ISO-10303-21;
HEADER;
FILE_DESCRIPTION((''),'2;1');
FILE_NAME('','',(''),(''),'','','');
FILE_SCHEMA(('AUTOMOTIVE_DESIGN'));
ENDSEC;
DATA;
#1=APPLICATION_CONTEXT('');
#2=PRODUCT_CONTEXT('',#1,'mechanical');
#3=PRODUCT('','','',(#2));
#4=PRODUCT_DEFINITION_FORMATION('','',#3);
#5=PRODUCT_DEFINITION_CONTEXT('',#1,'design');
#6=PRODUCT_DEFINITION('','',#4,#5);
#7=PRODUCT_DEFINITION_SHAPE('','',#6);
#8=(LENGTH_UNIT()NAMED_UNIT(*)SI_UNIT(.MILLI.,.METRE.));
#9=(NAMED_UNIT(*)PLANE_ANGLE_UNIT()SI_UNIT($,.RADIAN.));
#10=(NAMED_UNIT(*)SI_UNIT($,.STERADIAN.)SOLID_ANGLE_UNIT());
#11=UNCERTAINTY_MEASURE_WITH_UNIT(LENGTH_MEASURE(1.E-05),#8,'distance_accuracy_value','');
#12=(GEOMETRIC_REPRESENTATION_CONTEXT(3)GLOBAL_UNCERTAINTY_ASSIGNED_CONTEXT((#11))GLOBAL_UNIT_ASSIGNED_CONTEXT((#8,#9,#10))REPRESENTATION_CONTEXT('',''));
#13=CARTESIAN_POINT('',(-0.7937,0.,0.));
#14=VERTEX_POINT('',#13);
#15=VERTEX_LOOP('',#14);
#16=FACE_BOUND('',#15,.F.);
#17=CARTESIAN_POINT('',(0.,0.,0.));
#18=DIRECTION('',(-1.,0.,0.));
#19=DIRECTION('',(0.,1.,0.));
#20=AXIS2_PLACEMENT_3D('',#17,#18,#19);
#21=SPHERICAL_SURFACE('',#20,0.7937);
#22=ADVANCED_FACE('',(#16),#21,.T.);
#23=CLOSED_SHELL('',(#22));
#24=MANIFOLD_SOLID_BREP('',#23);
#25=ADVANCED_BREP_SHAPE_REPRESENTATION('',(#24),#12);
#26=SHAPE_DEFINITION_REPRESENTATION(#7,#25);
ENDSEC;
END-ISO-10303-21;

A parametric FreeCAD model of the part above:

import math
import FreeCAD as App
import Part
import Sketcher
Q = App.Units.Quantity

doc = App.newDocument("Part")
body = doc.addObject("PartDesign::Body", "Body")

sketch1 = body.newObject("Sketcher::SketchObject", "Sketch")
sketch1.AttachmentSupport = (doc.getObject("XY_Plane"), [""])
sketch1.MapMode = "FlatFace"
sketch1.addGeometry(Part.LineSegment(App.Vector(-0.8, 0, 0), App.Vector(0.8, 0, 0)), False)
sketch1.addGeometry(Part.ArcOfCircle(Part.Circle(App.Vector(0, 0, 0), App.Vector(0, 0, 1), 0.8), math.radians(0), math.radians(180)), False)
sketch1.addConstraint(Sketcher.Constraint("Coincident", 0, 1, 1, 2))
sketch1.addConstraint(Sketcher.Constraint("Coincident", 1, 1, 0, 2))
sketch1.addConstraint(Sketcher.Constraint("Horizontal", 0))
sketch1.addConstraint(Sketcher.Constraint("Coincident", 1, 3, -1, 1))
sketch1.addConstraint(Sketcher.Constraint("PointOnObject", 0, 1, -1))
sketch1.addConstraint(Sketcher.Constraint("Radius", 1, Q("0.031248 in")))
revolution = body.newObject("PartDesign::Revolution", "Revolution")
revolution.Profile = sketch1
revolution.ReferenceAxis = (sketch1, ["H_Axis"])
revolution.Angle = 360

doc.recompute()
